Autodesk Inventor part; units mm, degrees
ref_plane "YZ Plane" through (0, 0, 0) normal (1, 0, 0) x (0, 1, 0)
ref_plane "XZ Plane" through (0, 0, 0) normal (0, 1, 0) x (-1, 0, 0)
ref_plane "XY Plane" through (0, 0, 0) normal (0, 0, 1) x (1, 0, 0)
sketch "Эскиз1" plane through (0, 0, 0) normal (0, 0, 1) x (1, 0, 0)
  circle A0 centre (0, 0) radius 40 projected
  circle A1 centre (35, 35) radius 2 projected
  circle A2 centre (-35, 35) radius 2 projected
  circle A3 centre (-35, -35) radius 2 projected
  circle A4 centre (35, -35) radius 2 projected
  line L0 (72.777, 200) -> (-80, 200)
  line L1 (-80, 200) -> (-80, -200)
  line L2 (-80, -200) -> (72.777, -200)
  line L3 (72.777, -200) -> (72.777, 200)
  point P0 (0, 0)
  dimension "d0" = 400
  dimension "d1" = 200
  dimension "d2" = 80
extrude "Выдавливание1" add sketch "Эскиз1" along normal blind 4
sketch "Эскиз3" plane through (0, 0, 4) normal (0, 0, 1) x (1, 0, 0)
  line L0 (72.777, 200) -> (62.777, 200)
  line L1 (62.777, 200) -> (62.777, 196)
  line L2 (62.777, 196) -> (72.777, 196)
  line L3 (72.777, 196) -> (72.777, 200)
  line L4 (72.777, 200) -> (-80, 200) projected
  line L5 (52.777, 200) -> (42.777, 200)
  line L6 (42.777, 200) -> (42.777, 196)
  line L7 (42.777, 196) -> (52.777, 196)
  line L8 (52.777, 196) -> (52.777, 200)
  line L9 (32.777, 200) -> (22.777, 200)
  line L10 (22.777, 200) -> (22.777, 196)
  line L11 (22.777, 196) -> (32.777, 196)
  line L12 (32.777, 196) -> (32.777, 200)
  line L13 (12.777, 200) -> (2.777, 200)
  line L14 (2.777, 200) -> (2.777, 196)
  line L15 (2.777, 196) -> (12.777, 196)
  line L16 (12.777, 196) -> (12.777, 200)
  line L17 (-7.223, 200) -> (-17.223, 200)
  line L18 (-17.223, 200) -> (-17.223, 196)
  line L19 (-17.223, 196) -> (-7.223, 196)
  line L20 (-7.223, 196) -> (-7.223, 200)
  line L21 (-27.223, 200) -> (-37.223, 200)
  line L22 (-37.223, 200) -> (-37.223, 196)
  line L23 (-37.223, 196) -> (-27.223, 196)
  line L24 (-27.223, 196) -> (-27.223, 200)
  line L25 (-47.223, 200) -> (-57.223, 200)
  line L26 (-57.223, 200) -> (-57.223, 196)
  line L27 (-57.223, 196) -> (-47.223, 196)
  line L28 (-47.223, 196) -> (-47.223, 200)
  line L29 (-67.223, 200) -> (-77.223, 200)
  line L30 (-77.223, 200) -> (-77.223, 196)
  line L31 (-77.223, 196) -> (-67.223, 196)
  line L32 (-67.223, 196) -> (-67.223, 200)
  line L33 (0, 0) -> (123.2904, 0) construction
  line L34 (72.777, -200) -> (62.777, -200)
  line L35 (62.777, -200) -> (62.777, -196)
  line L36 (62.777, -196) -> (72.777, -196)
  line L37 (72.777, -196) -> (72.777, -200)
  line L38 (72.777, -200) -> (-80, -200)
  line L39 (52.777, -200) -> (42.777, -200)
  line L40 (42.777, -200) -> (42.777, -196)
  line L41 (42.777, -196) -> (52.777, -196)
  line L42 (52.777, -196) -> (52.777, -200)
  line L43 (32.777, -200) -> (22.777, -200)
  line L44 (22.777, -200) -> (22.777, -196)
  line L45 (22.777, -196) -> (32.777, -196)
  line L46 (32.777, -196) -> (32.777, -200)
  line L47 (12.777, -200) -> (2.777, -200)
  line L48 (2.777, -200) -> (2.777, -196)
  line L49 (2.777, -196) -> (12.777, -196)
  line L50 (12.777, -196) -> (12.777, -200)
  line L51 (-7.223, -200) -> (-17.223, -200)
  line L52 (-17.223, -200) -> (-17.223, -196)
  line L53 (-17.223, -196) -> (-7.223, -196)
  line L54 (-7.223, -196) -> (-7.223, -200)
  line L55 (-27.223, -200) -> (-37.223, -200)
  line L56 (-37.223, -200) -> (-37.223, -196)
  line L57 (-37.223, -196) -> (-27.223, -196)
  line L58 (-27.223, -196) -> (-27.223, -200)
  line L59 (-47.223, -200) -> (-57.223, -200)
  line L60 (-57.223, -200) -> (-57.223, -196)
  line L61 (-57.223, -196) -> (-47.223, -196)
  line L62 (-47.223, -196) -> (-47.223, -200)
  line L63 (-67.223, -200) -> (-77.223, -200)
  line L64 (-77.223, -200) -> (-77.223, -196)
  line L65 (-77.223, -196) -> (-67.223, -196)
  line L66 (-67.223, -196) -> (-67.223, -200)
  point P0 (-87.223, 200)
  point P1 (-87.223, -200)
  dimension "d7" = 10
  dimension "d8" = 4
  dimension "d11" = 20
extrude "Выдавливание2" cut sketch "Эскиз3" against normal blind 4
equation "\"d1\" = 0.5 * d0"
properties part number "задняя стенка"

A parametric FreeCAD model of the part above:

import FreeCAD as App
import Part
import Sketcher
Q = App.Units.Quantity


def add_polygon(sketch, points):
    """Adds a closed chain of lines whose ends are joined by coincident constraints."""
    first, n = sketch.GeometryCount, len(points)
    for a, b in zip(points, points[1:] + points[:1]):
        sketch.addGeometry(Part.LineSegment(App.Vector(*a, 0), App.Vector(*b, 0)), False)
    for i in range(n):
        sketch.addConstraint(Sketcher.Constraint("Coincident", first + i, 2, first + (i + 1) % n, 1))

doc = App.newDocument("Part")
body = doc.addObject("PartDesign::Body", "Body")

sketch1 = doc.addObject("Sketcher::SketchObject", "Sketch")
body.addObject(sketch1)
sketch1.AttachmentSupport = (doc.XY_Plane, [""])
sketch1.MapMode = "FlatFace"
add_polygon(sketch1, [(72.8, -200), (72.8, 200), (-80, 200), (-80, -200)])
sketch1.addGeometry(Part.Circle(App.Vector(-35, -35, 0), App.Vector(0, 0, 1), 2), False)
sketch1.addGeometry(Part.Circle(App.Vector(35, -35, 0), App.Vector(0, 0, 1), 2), False)
sketch1.addGeometry(Part.Circle(App.Vector(-35, 35, 0), App.Vector(0, 0, 1), 2), False)
sketch1.addGeometry(Part.Circle(App.Vector(0, 0, 0), App.Vector(0, 0, 1), 40), False)
sketch1.addGeometry(Part.Circle(App.Vector(35, 35, 0), App.Vector(0, 0, 1), 2), False)
sketch1.addConstraint(Sketcher.Constraint("Vertical", 0))
sketch1.addConstraint(Sketcher.Constraint("Horizontal", 1))
sketch1.addConstraint(Sketcher.Constraint("Vertical", 2))
sketch1.addConstraint(Sketcher.Constraint("Horizontal", 3))
sketch1.addConstraint(Sketcher.Constraint("Coincident", 7, 3, -1, 1))
sketch1.addConstraint(Sketcher.Constraint("Equal", 4, 5))
sketch1.addConstraint(Sketcher.Constraint("Equal", 5, 6))
sketch1.addConstraint(Sketcher.Constraint("Equal", 6, 8))
sketch1.addConstraint(Sketcher.Constraint("Symmetric", 5, 3, 6, 3, -1, 1))
sketch1.addConstraint(Sketcher.Constraint("Symmetric", 4, 3, 8, 3, -1, 1))
sketch1.addConstraint(Sketcher.Constraint("Symmetric", 4, 3, 5, 3, -2))
sketch1.addConstraint(Sketcher.Constraint("Diameter", 7, Q("80 mm")))
sketch1.addConstraint(Sketcher.Constraint("DistanceY", 0, 1, 0, 2, Q("400 mm")))
sketch1.addConstraint(Sketcher.Constraint("Diameter", 4, Q("4 mm")))
sketch1.addConstraint(Sketcher.Constraint("DistanceY", -1, 1, 0, 2, Q("200 mm")))
sketch1.addConstraint(Sketcher.Constraint("DistanceX", 1, 2, -1, 1, Q("80 mm")))
sketch1.addConstraint(Sketcher.Constraint("DistanceX", 4, 3, -1, 1, Q("35 mm")))
sketch1.addConstraint(Sketcher.Constraint("DistanceY", 4, 3, -1, 1, Q("35 mm")))
sketch1.addConstraint(Sketcher.Constraint("DistanceX", 1, 2, 1, 1, Q("152.777 mm")))
pad1 = doc.addObject("PartDesign::Pad", "Pad")
body.addObject(pad1)
pad1.Profile = sketch1
pad1.Length = 4

sketch2 = doc.addObject("Sketcher::SketchObject", "Sketch001")
body.addObject(sketch2)
sketch2.AttachmentSupport = (doc.XY_Plane, [""])
sketch2.MapMode = "FlatFace"
sketch2.AttachmentOffset = App.Placement(App.Vector(0, 0, 4), App.Rotation())
add_polygon(sketch2, [(72.8, 196), (72.8, 200), (62.8, 200), (62.8, 196)])
add_polygon(sketch2, [(-67.2, 196), (-67.2, 200), (-77.2, 200), (-77.2, 196)])
add_polygon(sketch2, [(-47.2, 196), (-47.2, 200), (-57.2, 200), (-57.2, 196)])
add_polygon(sketch2, [(-27.2, 196), (-27.2, 200), (-37.2, 200), (-37.2, 196)])
add_polygon(sketch2, [(-7.2, 196), (-7.2, 200), (-17.2, 200), (-17.2, 196)])
add_polygon(sketch2, [(12.8, 196), (12.8, 200), (2.8, 200), (2.8, 196)])
add_polygon(sketch2, [(32.8, 196), (32.8, 200), (22.8, 200), (22.8, 196)])
add_polygon(sketch2, [(52.8, 196), (52.8, 200), (42.8, 200), (42.8, 196)])
add_polygon(sketch2, [(-77.2, -200), (-67.2, -200), (-67.2, -196), (-77.2, -196)])
add_polygon(sketch2, [(-57.2, -200), (-47.2, -200), (-47.2, -196), (-57.2, -196)])
add_polygon(sketch2, [(-37.2, -200), (-27.2, -200), (-27.2, -196), (-37.2, -196)])
add_polygon(sketch2, [(-17.2, -200), (-7.2, -200), (-7.2, -196), (-17.2, -196)])
add_polygon(sketch2, [(2.8, -200), (12.8, -200), (12.8, -196), (2.8, -196)])
add_polygon(sketch2, [(22.8, -200), (32.8, -200), (32.8, -196), (22.8, -196)])
add_polygon(sketch2, [(42.8, -200), (52.8, -200), (52.8, -196), (42.8, -196)])
add_polygon(sketch2, [(62.8, -200), (72.8, -200), (72.8, -196), (62.8, -196)])
sketch2.addConstraint(Sketcher.Constraint("Vertical", 0))
sketch2.addConstraint(Sketcher.Constraint("Horizontal", 1))
sketch2.addConstraint(Sketcher.Constraint("Vertical", 2))
sketch2.addConstraint(Sketcher.Constraint("Horizontal", 3))
sketch2.addConstraint(Sketcher.Constraint("Vertical", 4))
sketch2.addConstraint(Sketcher.Constraint("Horizontal", 5))
sketch2.addConstraint(Sketcher.Constraint("Vertical", 6))
sketch2.addConstraint(Sketcher.Constraint("Horizontal", 7))
sketch2.addConstraint(Sketcher.Constraint("Vertical", 8))
sketch2.addConstraint(Sketcher.Constraint("Horizontal", 9))
sketch2.addConstraint(Sketcher.Constraint("Vertical", 10))
sketch2.addConstraint(Sketcher.Constraint("Horizontal", 11))
sketch2.addConstraint(Sketcher.Constraint("Vertical", 12))
sketch2.addConstraint(Sketcher.Constraint("Horizontal", 13))
sketch2.addConstraint(Sketcher.Constraint("Vertical", 14))
sketch2.addConstraint(Sketcher.Constraint("Horizontal", 15))
sketch2.addConstraint(Sketcher.Constraint("Vertical", 16))
sketch2.addConstraint(Sketcher.Constraint("Horizontal", 17))
sketch2.addConstraint(Sketcher.Constraint("Vertical", 18))
sketch2.addConstraint(Sketcher.Constraint("Horizontal", 19))
sketch2.addConstraint(Sketcher.Constraint("Vertical", 20))
sketch2.addConstraint(Sketcher.Constraint("Horizontal", 21))
sketch2.addConstraint(Sketcher.Constraint("Vertical", 22))
sketch2.addConstraint(Sketcher.Constraint("Horizontal", 23))
sketch2.addConstraint(Sketcher.Constraint("Vertical", 24))
sketch2.addConstraint(Sketcher.Constraint("Horizontal", 25))
sketch2.addConstraint(Sketcher.Constraint("Vertical", 26))
sketch2.addConstraint(Sketcher.Constraint("Horizontal", 27))
sketch2.addConstraint(Sketcher.Constraint("Vertical", 28))
sketch2.addConstraint(Sketcher.Constraint("Horizontal", 29))
sketch2.addConstraint(Sketcher.Constraint("Vertical", 30))
sketch2.addConstraint(Sketcher.Constraint("Horizontal", 31))
sketch2.addConstraint(Sketcher.Constraint("Horizontal", 32))
sketch2.addConstraint(Sketcher.Constraint("Vertical", 33))
sketch2.addConstraint(Sketcher.Constraint("Horizontal", 34))
sketch2.addConstraint(Sketcher.Constraint("Vertical", 35))
sketch2.addConstraint(Sketcher.Constraint("Horizontal", 36))
sketch2.addConstraint(Sketcher.Constraint("Vertical", 37))
sketch2.addConstraint(Sketcher.Constraint("Horizontal", 38))
sketch2.addConstraint(Sketcher.Constraint("Vertical", 39))
sketch2.addConstraint(Sketcher.Constraint("Horizontal", 40))
sketch2.addConstraint(Sketcher.Constraint("Vertical", 41))
sketch2.addConstraint(Sketcher.Constraint("Horizontal", 42))
sketch2.addConstraint(Sketcher.Constraint("Vertical", 43))
sketch2.addConstraint(Sketcher.Constraint("Horizontal", 44))
sketch2.addConstraint(Sketcher.Constraint("Vertical", 45))
sketch2.addConstraint(Sketcher.Constraint("Horizontal", 46))
sketch2.addConstraint(Sketcher.Constraint("Vertical", 47))
sketch2.addConstraint(Sketcher.Constraint("Horizontal", 48))
sketch2.addConstraint(Sketcher.Constraint("Vertical", 49))
sketch2.addConstraint(Sketcher.Constraint("Horizontal", 50))
sketch2.addConstraint(Sketcher.Constraint("Vertical", 51))
sketch2.addConstraint(Sketcher.Constraint("Horizontal", 52))
sketch2.addConstraint(Sketcher.Constraint("Vertical", 53))
sketch2.addConstraint(Sketcher.Constraint("Horizontal", 54))
sketch2.addConstraint(Sketcher.Constraint("Vertical", 55))
sketch2.addConstraint(Sketcher.Constraint("Horizontal", 56))
sketch2.addConstraint(Sketcher.Constraint("Vertical", 57))
sketch2.addConstraint(Sketcher.Constraint("Horizontal", 58))
sketch2.addConstraint(Sketcher.Constraint("Vertical", 59))
sketch2.addConstraint(Sketcher.Constraint("Horizontal", 60))
sketch2.addConstraint(Sketcher.Constraint("Vertical", 61))
sketch2.addConstraint(Sketcher.Constraint("Horizontal", 62))
sketch2.addConstraint(Sketcher.Constraint("Vertical", 63))
sketch2.addConstraint(Sketcher.Constraint("Symmetric", 4, 2, 32, 2, -1))
sketch2.addConstraint(Sketcher.Constraint("Symmetric", 6, 2, 34, 2, -1))
sketch2.addConstraint(Sketcher.Constraint("Symmetric", 8, 2, 36, 2, -1))
sketch2.addConstraint(Sketcher.Constraint("Symmetric", 10, 2, 38, 2, -1))
sketch2.addConstraint(Sketcher.Constraint("Symmetric", 12, 2, 40, 2, -1))
sketch2.addConstraint(Sketcher.Constraint("Symmetric", 14, 2, 42, 2, -1))
sketch2.addConstraint(Sketcher.Constraint("Symmetric", 16, 2, 44, 2, -1))
sketch2.addConstraint(Sketcher.Constraint("Symmetric", 18, 2, 46, 2, -1))
sketch2.addConstraint(Sketcher.Constraint("Symmetric", 20, 2, 48, 2, -1))
sketch2.addConstraint(Sketcher.Constraint("Symmetric", 22, 2, 50, 2, -1))
sketch2.addConstraint(Sketcher.Constraint("Symmetric", 24, 2, 52, 2, -1))
sketch2.addConstraint(Sketcher.Constraint("Symmetric", 26, 2, 54, 2, -1))
sketch2.addConstraint(Sketcher.Constraint("Symmetric", 28, 2, 56, 2, -1))
sketch2.addConstraint(Sketcher.Constraint("Symmetric", 30, 2, 58, 2, -1))
sketch2.addConstraint(Sketcher.Constraint("Symmetric", 0, 2, 60, 2, -1))
sketch2.addConstraint(Sketcher.Constraint("Symmetric", 2, 2, 62, 2, -1))
sketch2.addConstraint(Sketcher.Constraint("Horizontal", 1, 2, 4, 2))
sketch2.addConstraint(Sketcher.Constraint("Horizontal", 3, 2, 6, 2))
sketch2.addConstraint(Sketcher.Constraint("Horizontal", 5, 2, 8, 2))
sketch2.addConstraint(Sketcher.Constraint("Horizontal", 7, 2, 10, 2))
sketch2.addConstraint(Sketcher.Constraint("Horizontal", 9, 2, 12, 2))
sketch2.addConstraint(Sketcher.Constraint("Horizontal", 11, 2, 14, 2))
sketch2.addConstraint(Sketcher.Constraint("Horizontal", 13, 2, 16, 2))
sketch2.addConstraint(Sketcher.Constraint("Horizontal", 15, 2, 18, 2))
sketch2.addConstraint(Sketcher.Constraint("Horizontal", 17, 2, 20, 2))
sketch2.addConstraint(Sketcher.Constraint("Horizontal", 19, 2, 22, 2))
sketch2.addConstraint(Sketcher.Constraint("Horizontal", 21, 2, 24, 2))
sketch2.addConstraint(Sketcher.Constraint("Horizontal", 23, 2, 26, 2))
sketch2.addConstraint(Sketcher.Constraint("Horizontal", 25, 2, 28, 2))
sketch2.addConstraint(Sketcher.Constraint("Horizontal", 27, 2, 30, 2))
sketch2.addConstraint(Sketcher.Constraint("Equal", 3, 5))
sketch2.addConstraint(Sketcher.Constraint("Equal", 7, 9))
sketch2.addConstraint(Sketcher.Constraint("Equal", 11, 13))
sketch2.addConstraint(Sketcher.Constraint("Equal", 15, 17))
sketch2.addConstraint(Sketcher.Constraint("Equal", 19, 21))
sketch2.addConstraint(Sketcher.Constraint("Equal", 23, 25))
sketch2.addConstraint(Sketcher.Constraint("Equal", 27, 29))
sketch2.addConstraint(Sketcher.Constraint("DistanceX", 1, 2, 1, 1, Q("10 mm")))
sketch2.addConstraint(Sketcher.Constraint("DistanceY", 0, 1, 0, 2, Q("4 mm")))
sketch2.addConstraint(Sketcher.Constraint("DistanceY", -1, 1, 0, 2, Q("200 mm")))
sketch2.addConstraint(Sketcher.Constraint("DistanceX", -1, 1, 0, 2, Q("72.777 mm")))
sketch2.addConstraint(Sketcher.Constraint("DistanceX", 4, 2, -1, 1, Q("67.223 mm")))
sketch2.addConstraint(Sketcher.Constraint("DistanceX", 8, 2, -1, 1, Q("47.223 mm")))
sketch2.addConstraint(Sketcher.Constraint("DistanceX", 12, 2, -1, 1, Q("27.223 mm")))
sketch2.addConstraint(Sketcher.Constraint("DistanceX", 16, 2, -1, 1, Q("7.223 mm")))
sketch2.addConstraint(Sketcher.Constraint("DistanceX", -1, 1, 20, 2, Q("12.777 mm")))
sketch2.addConstraint(Sketcher.Constraint("DistanceX", -1, 1, 24, 2, Q("32.777 mm")))
sketch2.addConstraint(Sketcher.Constraint("DistanceX", -1, 1, 28, 2, Q("52.777 mm")))
pocket1 = doc.addObject("PartDesign::Pocket", "Pocket")
body.addObject(pocket1)
pocket1.Profile = sketch2
pocket1.Length = 4

doc.recompute()
